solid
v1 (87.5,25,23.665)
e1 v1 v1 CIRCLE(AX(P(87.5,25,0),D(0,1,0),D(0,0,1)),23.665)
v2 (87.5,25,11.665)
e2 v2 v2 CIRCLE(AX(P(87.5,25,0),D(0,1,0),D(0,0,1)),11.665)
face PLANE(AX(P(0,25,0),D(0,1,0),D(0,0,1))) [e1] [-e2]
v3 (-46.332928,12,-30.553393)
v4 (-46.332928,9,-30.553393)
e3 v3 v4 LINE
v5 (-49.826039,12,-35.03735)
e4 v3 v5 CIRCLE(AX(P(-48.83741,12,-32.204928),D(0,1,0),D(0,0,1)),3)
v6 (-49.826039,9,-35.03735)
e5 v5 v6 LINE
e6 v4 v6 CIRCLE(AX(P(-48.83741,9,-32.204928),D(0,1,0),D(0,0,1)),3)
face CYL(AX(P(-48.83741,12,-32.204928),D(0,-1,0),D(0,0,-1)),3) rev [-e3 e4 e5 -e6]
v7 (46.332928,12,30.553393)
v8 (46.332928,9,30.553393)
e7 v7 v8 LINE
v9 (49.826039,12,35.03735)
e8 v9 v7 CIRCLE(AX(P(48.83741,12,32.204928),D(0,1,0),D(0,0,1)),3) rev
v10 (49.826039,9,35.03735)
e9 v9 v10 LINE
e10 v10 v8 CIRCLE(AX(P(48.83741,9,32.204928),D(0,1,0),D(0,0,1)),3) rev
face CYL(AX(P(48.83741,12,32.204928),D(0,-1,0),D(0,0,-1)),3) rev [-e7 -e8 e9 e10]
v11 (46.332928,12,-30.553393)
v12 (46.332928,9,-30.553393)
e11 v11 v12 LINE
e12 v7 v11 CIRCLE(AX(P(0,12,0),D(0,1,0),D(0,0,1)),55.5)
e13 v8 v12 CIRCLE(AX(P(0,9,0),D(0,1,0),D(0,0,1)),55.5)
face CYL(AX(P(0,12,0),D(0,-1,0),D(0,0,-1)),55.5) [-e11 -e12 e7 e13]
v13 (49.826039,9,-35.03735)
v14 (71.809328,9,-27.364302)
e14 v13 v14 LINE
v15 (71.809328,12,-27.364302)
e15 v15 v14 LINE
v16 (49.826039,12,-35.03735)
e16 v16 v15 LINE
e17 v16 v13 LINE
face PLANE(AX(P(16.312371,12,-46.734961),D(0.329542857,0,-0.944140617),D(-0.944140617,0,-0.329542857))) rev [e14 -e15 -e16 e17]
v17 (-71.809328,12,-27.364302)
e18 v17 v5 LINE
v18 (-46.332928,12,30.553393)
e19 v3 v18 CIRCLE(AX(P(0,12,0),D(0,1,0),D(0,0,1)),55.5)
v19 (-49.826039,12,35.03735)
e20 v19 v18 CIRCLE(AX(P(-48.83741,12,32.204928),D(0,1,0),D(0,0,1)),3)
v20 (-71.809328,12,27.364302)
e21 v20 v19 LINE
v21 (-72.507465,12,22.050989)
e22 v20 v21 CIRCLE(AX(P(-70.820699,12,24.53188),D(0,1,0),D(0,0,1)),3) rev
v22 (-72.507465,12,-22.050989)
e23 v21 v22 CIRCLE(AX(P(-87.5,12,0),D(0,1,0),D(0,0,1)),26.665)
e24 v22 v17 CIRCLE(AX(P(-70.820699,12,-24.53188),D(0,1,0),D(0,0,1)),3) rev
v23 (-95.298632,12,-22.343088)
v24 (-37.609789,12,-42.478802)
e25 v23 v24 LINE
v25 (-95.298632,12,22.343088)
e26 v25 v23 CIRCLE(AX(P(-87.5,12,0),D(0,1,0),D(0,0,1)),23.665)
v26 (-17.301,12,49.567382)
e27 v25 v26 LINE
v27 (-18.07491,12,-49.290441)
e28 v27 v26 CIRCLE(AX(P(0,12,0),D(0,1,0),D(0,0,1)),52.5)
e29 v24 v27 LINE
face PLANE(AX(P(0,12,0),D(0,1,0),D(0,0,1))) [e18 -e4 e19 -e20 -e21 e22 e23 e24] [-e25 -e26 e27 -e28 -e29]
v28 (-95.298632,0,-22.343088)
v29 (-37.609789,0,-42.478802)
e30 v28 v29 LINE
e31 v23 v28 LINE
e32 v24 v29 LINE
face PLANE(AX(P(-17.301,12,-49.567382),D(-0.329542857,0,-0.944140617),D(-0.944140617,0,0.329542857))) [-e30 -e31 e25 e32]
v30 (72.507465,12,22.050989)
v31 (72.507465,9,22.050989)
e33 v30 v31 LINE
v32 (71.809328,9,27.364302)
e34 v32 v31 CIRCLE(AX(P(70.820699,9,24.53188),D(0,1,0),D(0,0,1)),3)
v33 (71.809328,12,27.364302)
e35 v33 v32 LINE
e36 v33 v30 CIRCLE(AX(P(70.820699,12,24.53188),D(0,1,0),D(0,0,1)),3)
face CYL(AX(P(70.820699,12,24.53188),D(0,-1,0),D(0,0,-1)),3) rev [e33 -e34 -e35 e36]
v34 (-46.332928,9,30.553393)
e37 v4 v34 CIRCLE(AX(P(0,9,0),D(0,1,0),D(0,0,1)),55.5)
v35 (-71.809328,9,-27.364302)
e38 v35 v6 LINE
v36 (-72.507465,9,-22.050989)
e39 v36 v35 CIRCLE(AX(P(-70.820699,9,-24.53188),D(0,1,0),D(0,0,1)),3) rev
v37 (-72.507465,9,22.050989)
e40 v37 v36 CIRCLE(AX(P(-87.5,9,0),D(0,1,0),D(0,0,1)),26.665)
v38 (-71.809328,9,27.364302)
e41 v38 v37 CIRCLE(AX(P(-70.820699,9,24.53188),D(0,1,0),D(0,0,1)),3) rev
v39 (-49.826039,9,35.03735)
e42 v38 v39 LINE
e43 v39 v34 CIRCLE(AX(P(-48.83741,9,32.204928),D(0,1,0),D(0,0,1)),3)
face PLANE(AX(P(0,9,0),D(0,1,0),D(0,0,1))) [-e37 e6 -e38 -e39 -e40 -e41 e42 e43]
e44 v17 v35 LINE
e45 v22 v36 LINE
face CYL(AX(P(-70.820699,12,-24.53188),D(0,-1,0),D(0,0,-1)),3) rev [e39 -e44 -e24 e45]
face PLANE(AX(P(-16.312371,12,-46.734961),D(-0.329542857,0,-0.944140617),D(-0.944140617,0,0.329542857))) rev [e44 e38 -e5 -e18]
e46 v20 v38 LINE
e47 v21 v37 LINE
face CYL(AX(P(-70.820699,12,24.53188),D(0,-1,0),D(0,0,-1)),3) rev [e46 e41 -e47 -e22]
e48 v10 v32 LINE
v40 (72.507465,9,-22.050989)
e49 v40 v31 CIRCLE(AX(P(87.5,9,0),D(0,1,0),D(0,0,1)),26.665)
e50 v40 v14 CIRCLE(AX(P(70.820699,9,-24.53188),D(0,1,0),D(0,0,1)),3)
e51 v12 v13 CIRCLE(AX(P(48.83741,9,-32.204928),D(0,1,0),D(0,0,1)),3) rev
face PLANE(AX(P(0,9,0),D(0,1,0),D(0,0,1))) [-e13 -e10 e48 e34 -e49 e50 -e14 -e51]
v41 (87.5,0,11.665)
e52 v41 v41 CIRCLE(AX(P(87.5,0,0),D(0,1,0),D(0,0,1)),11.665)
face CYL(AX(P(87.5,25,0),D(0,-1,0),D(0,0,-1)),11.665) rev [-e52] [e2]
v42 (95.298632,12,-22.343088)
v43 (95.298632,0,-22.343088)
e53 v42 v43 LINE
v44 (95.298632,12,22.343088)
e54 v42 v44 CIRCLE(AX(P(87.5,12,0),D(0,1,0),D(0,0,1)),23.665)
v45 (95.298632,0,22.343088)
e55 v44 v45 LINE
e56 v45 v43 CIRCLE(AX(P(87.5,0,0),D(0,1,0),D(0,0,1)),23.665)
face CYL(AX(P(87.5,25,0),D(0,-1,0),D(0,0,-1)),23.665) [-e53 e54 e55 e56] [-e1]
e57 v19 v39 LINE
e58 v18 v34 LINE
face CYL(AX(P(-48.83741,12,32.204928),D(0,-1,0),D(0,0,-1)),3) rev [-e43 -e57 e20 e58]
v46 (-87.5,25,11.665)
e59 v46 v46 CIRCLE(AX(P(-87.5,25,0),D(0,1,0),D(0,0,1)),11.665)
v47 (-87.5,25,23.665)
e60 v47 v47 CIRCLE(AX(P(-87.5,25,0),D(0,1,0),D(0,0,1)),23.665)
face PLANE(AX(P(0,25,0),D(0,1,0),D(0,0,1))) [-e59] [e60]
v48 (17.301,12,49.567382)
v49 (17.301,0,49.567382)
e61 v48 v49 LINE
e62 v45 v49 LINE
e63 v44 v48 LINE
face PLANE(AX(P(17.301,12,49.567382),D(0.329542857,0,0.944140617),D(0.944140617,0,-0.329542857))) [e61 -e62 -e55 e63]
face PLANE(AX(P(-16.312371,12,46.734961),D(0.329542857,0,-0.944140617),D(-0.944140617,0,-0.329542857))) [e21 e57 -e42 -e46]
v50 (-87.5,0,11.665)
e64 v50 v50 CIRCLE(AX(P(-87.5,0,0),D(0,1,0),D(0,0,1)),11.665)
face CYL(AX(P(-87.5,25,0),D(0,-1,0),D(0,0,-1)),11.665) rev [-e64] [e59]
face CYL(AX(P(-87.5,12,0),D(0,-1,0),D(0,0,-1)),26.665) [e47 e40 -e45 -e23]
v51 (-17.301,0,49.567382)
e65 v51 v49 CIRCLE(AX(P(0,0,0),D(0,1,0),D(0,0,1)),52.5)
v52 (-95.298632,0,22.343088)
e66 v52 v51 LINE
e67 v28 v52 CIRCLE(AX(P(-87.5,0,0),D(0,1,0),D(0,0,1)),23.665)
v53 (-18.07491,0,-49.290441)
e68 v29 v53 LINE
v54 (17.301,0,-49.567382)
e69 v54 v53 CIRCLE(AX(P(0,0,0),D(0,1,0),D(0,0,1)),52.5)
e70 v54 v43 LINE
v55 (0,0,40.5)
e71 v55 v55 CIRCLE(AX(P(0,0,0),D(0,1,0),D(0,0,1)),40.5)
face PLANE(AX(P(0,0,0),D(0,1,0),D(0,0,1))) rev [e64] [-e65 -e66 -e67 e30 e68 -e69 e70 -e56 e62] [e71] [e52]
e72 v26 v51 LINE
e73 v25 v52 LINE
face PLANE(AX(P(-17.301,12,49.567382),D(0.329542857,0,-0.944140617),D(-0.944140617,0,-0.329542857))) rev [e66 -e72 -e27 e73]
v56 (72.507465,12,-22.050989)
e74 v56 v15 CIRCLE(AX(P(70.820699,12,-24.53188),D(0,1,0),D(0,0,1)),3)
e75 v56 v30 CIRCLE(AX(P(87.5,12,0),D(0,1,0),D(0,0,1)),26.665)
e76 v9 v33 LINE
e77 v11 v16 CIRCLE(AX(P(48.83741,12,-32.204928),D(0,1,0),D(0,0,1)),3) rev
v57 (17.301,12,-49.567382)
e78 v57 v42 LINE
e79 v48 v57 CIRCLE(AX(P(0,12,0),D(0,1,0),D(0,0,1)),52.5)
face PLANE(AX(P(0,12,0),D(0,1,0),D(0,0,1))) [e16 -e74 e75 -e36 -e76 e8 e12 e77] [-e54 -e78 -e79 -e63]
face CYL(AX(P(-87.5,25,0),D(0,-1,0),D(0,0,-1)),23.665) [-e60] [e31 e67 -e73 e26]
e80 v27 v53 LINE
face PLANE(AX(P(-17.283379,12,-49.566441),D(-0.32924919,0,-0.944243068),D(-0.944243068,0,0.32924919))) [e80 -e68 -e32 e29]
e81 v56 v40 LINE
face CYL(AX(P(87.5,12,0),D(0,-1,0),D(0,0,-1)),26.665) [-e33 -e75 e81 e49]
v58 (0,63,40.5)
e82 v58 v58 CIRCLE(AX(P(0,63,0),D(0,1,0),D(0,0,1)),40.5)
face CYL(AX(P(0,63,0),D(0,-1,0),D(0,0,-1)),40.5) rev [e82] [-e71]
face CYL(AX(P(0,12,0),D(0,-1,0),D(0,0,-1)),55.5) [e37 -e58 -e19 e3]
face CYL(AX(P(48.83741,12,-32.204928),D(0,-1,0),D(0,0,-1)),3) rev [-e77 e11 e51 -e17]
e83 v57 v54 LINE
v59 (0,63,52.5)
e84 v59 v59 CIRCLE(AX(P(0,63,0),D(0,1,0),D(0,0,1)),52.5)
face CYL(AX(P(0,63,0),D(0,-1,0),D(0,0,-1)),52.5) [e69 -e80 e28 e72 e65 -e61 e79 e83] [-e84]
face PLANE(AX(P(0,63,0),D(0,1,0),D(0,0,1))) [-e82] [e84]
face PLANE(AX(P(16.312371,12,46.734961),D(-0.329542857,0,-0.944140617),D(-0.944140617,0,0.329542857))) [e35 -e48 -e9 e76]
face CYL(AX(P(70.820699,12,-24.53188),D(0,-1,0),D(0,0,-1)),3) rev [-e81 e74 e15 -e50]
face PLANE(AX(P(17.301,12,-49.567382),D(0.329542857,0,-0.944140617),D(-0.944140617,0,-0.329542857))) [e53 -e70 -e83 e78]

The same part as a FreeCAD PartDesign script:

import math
import FreeCAD as App
import Part
import Sketcher
from FreeCAD import Vector
Q = App.Units.Quantity

doc = App.newDocument("Part")
body = doc.addObject("PartDesign::Body", "Body")
body.AllowCompound = True

# Sketch on XZ plane
sketch1 = body.newObject("Sketcher::SketchObject", "Sketch")
sketch1.AttachmentSupport = (doc.getObject("XZ_Plane"), [""])
sketch1.MapMode = "FlatFace"
sketch1.addGeometry(Part.LineSegment(Vector(95.3, -22.3, 0), Vector(17.3, -49.6, 0)), False)
sketch1.addGeometry(Part.ArcOfCircle(Part.Circle(Vector(0, 0, 0), Vector(0, 0, 1), 52.5), math.radians(-71), math.radians(0)), False)
sketch1.addGeometry(Part.ArcOfCircle(Part.Circle(Vector(0, 0, 0), Vector(0, 0, 1), 52.5), math.radians(0), math.radians(71)), False)
sketch1.addGeometry(Part.LineSegment(Vector(17.3, 49.6, 0), Vector(95.3, 22.3, 0)), False)
sketch1.addGeometry(Part.ArcOfCircle(Part.Circle(Vector(87.5, 0, 0), Vector(0, 0, 1), 23.7), math.radians(71), math.radians(289)), False)
sketch1.addGeometry(Part.ArcOfCircle(Part.Circle(Vector(70.8, 24.5, 0), Vector(0, 0, 1), 3), math.radians(-56), math.radians(71)), False)
sketch1.addGeometry(Part.LineSegment(Vector(71.8, 27.4, 0), Vector(49.8, 35, 0)), False)
sketch1.addGeometry(Part.ArcOfCircle(Part.Circle(Vector(48.8, 32.2, 0), Vector(0, 0, 1), 3), math.radians(71), math.radians(213)), False)
sketch1.addGeometry(Part.ArcOfCircle(Part.Circle(Vector(0, 0, 0), Vector(0, 0, 1), 55.5), math.radians(-33), math.radians(33)), False)
sketch1.addGeometry(Part.ArcOfCircle(Part.Circle(Vector(48.8, -32.2, 0), Vector(0, 0, 1), 3), math.radians(147), math.radians(289)), False)
sketch1.addGeometry(Part.LineSegment(Vector(49.8, -35, 0), Vector(71.8, -27.4, 0)), False)
sketch1.addGeometry(Part.ArcOfCircle(Part.Circle(Vector(70.8, -24.5, 0), Vector(0, 0, 1), 3), math.radians(-71), math.radians(56)), False)
sketch1.addGeometry(Part.ArcOfCircle(Part.Circle(Vector(87.5, 0, 0), Vector(0, 0, 1), 26.7), math.radians(124), math.radians(236)), False)
sketch1.addConstraint(Sketcher.Constraint("Tangent", 0, 2, 1, 1))
sketch1.addConstraint(Sketcher.Constraint("Tangent", 1, 2, 2, 1))
sketch1.addConstraint(Sketcher.Constraint("Tangent", 2, 2, 3, 1))
sketch1.addConstraint(Sketcher.Constraint("Tangent", 3, 2, 4, 1))
sketch1.addConstraint(Sketcher.Constraint("Tangent", 4, 2, 0, 1))
sketch1.addConstraint(Sketcher.Constraint("Tangent", 5, 2, 6, 1))
sketch1.addConstraint(Sketcher.Constraint("Tangent", 6, 2, 7, 1))
sketch1.addConstraint(Sketcher.Constraint("Tangent", 7, 2, 8, 2))
sketch1.addConstraint(Sketcher.Constraint("Tangent", 8, 1, 9, 1))
sketch1.addConstraint(Sketcher.Constraint("Tangent", 9, 2, 10, 1))
sketch1.addConstraint(Sketcher.Constraint("Tangent", 10, 2, 11, 1))
sketch1.addConstraint(Sketcher.Constraint("Tangent", 11, 2, 12, 2))
sketch1.addConstraint(Sketcher.Constraint("Tangent", 12, 1, 5, 1))
sketch1.addConstraint(Sketcher.Constraint("Coincident", 1, 3, -1, 1))
sketch1.addConstraint(Sketcher.Constraint("Coincident", 8, 3, -1, 1))
sketch1.addConstraint(Sketcher.Constraint("Coincident", 12, 3, 4, 3))
sketch1.addConstraint(Sketcher.Constraint("Equal", 1, 2))
sketch1.addConstraint(Sketcher.Constraint("Equal", 5, 7))
sketch1.addConstraint(Sketcher.Constraint("Equal", 7, 9))
sketch1.addConstraint(Sketcher.Constraint("Equal", 9, 11))
sketch1.addConstraint(Sketcher.Constraint("Symmetric", 5, 3, 11, 3, -1))
sketch1.addConstraint(Sketcher.Constraint("PointOnObject", 1, 2, -1))
sketch1.addConstraint(Sketcher.Constraint("Parallel", 3, 6))
sketch1.addConstraint(Sketcher.Constraint("Parallel", 0, 10))
sketch1.addConstraint(Sketcher.Constraint("Radius", 5, Q("3 mm")))
sketch1.addConstraint(Sketcher.Constraint("Radius", 1, Q("52.5 mm")))
sketch1.addConstraint(Sketcher.Constraint("Radius", 8, Q("55.5 mm")))
sketch1.addConstraint(Sketcher.Constraint("Radius", 4, Q("23.665 mm")))
sketch1.addConstraint(Sketcher.Constraint("Radius", 12, Q("26.665 mm")))
sketch1.addConstraint(Sketcher.Constraint("DistanceX", 1, 2, 4, 3, Q("35 mm")))
sketch1.addConstraint(Sketcher.Constraint("DistanceX", -1, 1, 5, 3, Q("70.820699 mm")))
pad1 = body.newObject("PartDesign::Pad", "Pad")
pad1.Profile = sketch1
pad1.Length = 12
pad1.Reversed = True

# Sketch on XZ plane
sketch2 = body.newObject("Sketcher::SketchObject", "Sketch001")
sketch2.AttachmentSupport = (doc.getObject("XZ_Plane"), [""])
sketch2.MapMode = "FlatFace"
sketch2.addGeometry(Part.ArcOfCircle(Part.Circle(Vector(48.8, 32.2, 0), Vector(0, 0, 1), 3), math.radians(71), math.radians(213)), False)
sketch2.addGeometry(Part.LineSegment(Vector(49.8, 35, 0), Vector(71.8, 27.4, 0)), False)
sketch2.addGeometry(Part.ArcOfCircle(Part.Circle(Vector(70.8, 24.5, 0), Vector(0, 0, 1), 3), math.radians(-56), math.radians(71)), False)
sketch2.addGeometry(Part.ArcOfCircle(Part.Circle(Vector(87.5, 0, 0), Vector(0, 0, 1), 26.7), math.radians(124), math.radians(236)), False)
sketch2.addGeometry(Part.ArcOfCircle(Part.Circle(Vector(70.8, -24.5, 0), Vector(0, 0, 1), 3), math.radians(-71), math.radians(56)), False)
sketch2.addGeometry(Part.LineSegment(Vector(71.8, -27.4, 0), Vector(49.8, -35, 0)), False)
sketch2.addGeometry(Part.ArcOfCircle(Part.Circle(Vector(48.8, -32.2, 0), Vector(0, 0, 1), 3), math.radians(147), math.radians(289)), False)
sketch2.addGeometry(Part.ArcOfCircle(Part.Circle(Vector(0, 0, 0), Vector(0, 0, 1), 55.5), math.radians(-33), math.radians(33)), False)
sketch2.addGeometry(Part.ArcOfCircle(Part.Circle(Vector(0, 0, 0), Vector(0, 0, 1), 55.5), math.radians(147), math.radians(213)), False)
sketch2.addGeometry(Part.ArcOfCircle(Part.Circle(Vector(-48.8, -32.2, 0), Vector(0, 0, 1), 3), math.radians(-109), math.radians(33)), False)
sketch2.addGeometry(Part.LineSegment(Vector(-49.8, -35, 0), Vector(-71.8, -27.4, 0)), False)
sketch2.addGeometry(Part.ArcOfCircle(Part.Circle(Vector(-70.8, -24.5, 0), Vector(0, 0, 1), 3), math.radians(124), math.radians(251)), False)
sketch2.addGeometry(Part.ArcOfCircle(Part.Circle(Vector(-87.5, 0, 0), Vector(0, 0, 1), 26.7), math.radians(-56), math.radians(56)), False)
sketch2.addGeometry(Part.ArcOfCircle(Part.Circle(Vector(-70.8, 24.5, 0), Vector(0, 0, 1), 3), math.radians(109), math.radians(236)), False)
sketch2.addGeometry(Part.LineSegment(Vector(-71.8, 27.4, 0), Vector(-49.8, 35, 0)), False)
sketch2.addGeometry(Part.ArcOfCircle(Part.Circle(Vector(-48.8, 32.2, 0), Vector(0, 0, 1), 3), math.radians(-33), math.radians(109)), False)
sketch2.addConstraint(Sketcher.Constraint("Tangent", 0, 1, 1, 1))
sketch2.addConstraint(Sketcher.Constraint("Tangent", 1, 2, 2, 2))
sketch2.addConstraint(Sketcher.Constraint("Tangent", 2, 1, 3, 1))
sketch2.addConstraint(Sketcher.Constraint("Tangent", 3, 2, 4, 2))
sketch2.addConstraint(Sketcher.Constraint("Tangent", 4, 1, 5, 1))
sketch2.addConstraint(Sketcher.Constraint("Tangent", 5, 2, 6, 2))
sketch2.addConstraint(Sketcher.Constraint("Tangent", 6, 1, 7, 1))
sketch2.addConstraint(Sketcher.Constraint("Tangent", 7, 2, 0, 2))
sketch2.addConstraint(Sketcher.Constraint("Tangent", 8, 2, 9, 2))
sketch2.addConstraint(Sketcher.Constraint("Tangent", 9, 1, 10, 1))
sketch2.addConstraint(Sketcher.Constraint("Tangent", 10, 2, 11, 2))
sketch2.addConstraint(Sketcher.Constraint("Tangent", 11, 1, 12, 1))
sketch2.addConstraint(Sketcher.Constraint("Tangent", 12, 2, 13, 2))
sketch2.addConstraint(Sketcher.Constraint("Tangent", 13, 1, 14, 1))
sketch2.addConstraint(Sketcher.Constraint("Tangent", 14, 2, 15, 2))
sketch2.addConstraint(Sketcher.Constraint("Tangent", 15, 1, 8, 1))
sketch2.addConstraint(Sketcher.Constraint("Coincident", 7, 3, -1, 1))
sketch2.addConstraint(Sketcher.Constraint("Coincident", 8, 3, -1, 1))
sketch2.addConstraint(Sketcher.Constraint("Equal", 0, 2))
sketch2.addConstraint(Sketcher.Constraint("Equal", 2, 4))
sketch2.addConstraint(Sketcher.Constraint("Equal", 4, 6))
sketch2.addConstraint(Sketcher.Constraint("Equal", 7, 8))
sketch2.addConstraint(Sketcher.Constraint("Equal", 6, 9))
sketch2.addConstraint(Sketcher.Constraint("Equal", 9, 11))
sketch2.addConstraint(Sketcher.Constraint("Equal", 3, 12))
sketch2.addConstraint(Sketcher.Constraint("Equal", 11, 13))
sketch2.addConstraint(Sketcher.Constraint("Equal", 13, 15))
sketch2.addConstraint(Sketcher.Constraint("Symmetric", 2, 3, 11, 3, -1, 1))
sketch2.addConstraint(Sketcher.Constraint("Symmetric", 4, 3, 13, 3, -1, 1))
sketch2.addConstraint(Sketcher.Constraint("Symmetric", 4, 3, 11, 3, -2))
sketch2.addConstraint(Sketcher.Constraint("Parallel", 1, 10))
sketch2.addConstraint(Sketcher.Constraint("Parallel", 5, 14))
sketch2.addConstraint(Sketcher.Constraint("Horizontal", 6, 3, 9, 3))
sketch2.addConstraint(Sketcher.Constraint("Radius", 0, Q("3 mm")))
sketch2.addConstraint(Sketcher.Constraint("Radius", 7, Q("55.5 mm")))
sketch2.addConstraint(Sketcher.Constraint("Radius", 3, Q("26.665 mm")))
sketch2.addConstraint(Sketcher.Constraint("DistanceX", -1, 1, 3, 3, Q("87.5 mm")))
sketch2.addConstraint(Sketcher.Constraint("DistanceX", -1, 1, 2, 3, Q("70.820699 mm")))
sketch2.addConstraint(Sketcher.Constraint("DistanceX", 6, 1, 4, 1, Q("25.4764 mm")))
pad2 = body.newObject("PartDesign::Pad", "Pad001")
pad2.Profile = sketch2
pad2.Length = 9
pad2.Reversed = True

# Sketch on XZ plane
sketch3 = body.newObject("Sketcher::SketchObject", "Sketch002")
sketch3.AttachmentSupport = (doc.getObject("XZ_Plane"), [""])
sketch3.MapMode = "FlatFace"
sketch3.addGeometry(Part.LineSegment(Vector(-37.6, -42.5, 0), Vector(-95.3, -22.3, 0)), False)
sketch3.addGeometry(Part.ArcOfCircle(Part.Circle(Vector(-87.5, 0, 0), Vector(0, 0, 1), 23.7), math.radians(-109), math.radians(0)), False)
sketch3.addGeometry(Part.ArcOfCircle(Part.Circle(Vector(-87.5, 0, 0), Vector(0, 0, 1), 23.7), math.radians(0), math.radians(109)), False)
sketch3.addGeometry(Part.LineSegment(Vector(-95.3, 22.3, 0), Vector(-17.3, 49.6, 0)), False)
sketch3.addGeometry(Part.ArcOfCircle(Part.Circle(Vector(0, 0, 0), Vector(0, 0, 1), 52.5), math.radians(109), math.radians(250)), False)
sketch3.addGeometry(Part.LineSegment(Vector(-18.1, -49.3, 0), Vector(-37.6, -42.5, 0)), False)
sketch3.addGeometry(Part.ArcOfCircle(Part.Circle(Vector(-87.5, 0, 0), Vector(0, 0, 1), 26.7), math.radians(-56), math.radians(56)), False)
sketch3.addGeometry(Part.ArcOfCircle(Part.Circle(Vector(-70.8, -24.5, 0), Vector(0, 0, 1), 3), math.radians(124), math.radians(251)), False)
sketch3.addGeometry(Part.LineSegment(Vector(-71.8, -27.4, 0), Vector(-49.8, -35, 0)), False)
sketch3.addGeometry(Part.ArcOfCircle(Part.Circle(Vector(-48.8, -32.2, 0), Vector(0, 0, 1), 3), math.radians(-109), math.radians(33)), False)
sketch3.addGeometry(Part.ArcOfCircle(Part.Circle(Vector(0, 0, 0), Vector(0, 0, 1), 55.5), math.radians(147), math.radians(213)), False)
sketch3.addGeometry(Part.ArcOfCircle(Part.Circle(Vector(-48.8, 32.2, 0), Vector(0, 0, 1), 3), math.radians(-33), math.radians(109)), False)
sketch3.addGeometry(Part.LineSegment(Vector(-49.8, 35, 0), Vector(-71.8, 27.4, 0)), False)
sketch3.addGeometry(Part.ArcOfCircle(Part.Circle(Vector(-70.8, 24.5, 0), Vector(0, 0, 1), 3), math.radians(109), math.radians(236)), False)
sketch3.addConstraint(Sketcher.Constraint("Tangent", 0, 2, 1, 1))
sketch3.addConstraint(Sketcher.Constraint("Tangent", 1, 2, 2, 1))
sketch3.addConstraint(Sketcher.Constraint("Tangent", 2, 2, 3, 1))
sketch3.addConstraint(Sketcher.Constraint("Tangent", 3, 2, 4, 1))
sketch3.addConstraint(Sketcher.Constraint("Coincident", 4, 2, 5, 1))
sketch3.addConstraint(Sketcher.Constraint("Coincident", 5, 2, 0, 1))
sketch3.addConstraint(Sketcher.Constraint("Tangent", 6, 1, 7, 1))
sketch3.addConstraint(Sketcher.Constraint("Tangent", 7, 2, 8, 1))
sketch3.addConstraint(Sketcher.Constraint("Tangent", 8, 2, 9, 1))
sketch3.addConstraint(Sketcher.Constraint("Tangent", 9, 2, 10, 2))
sketch3.addConstraint(Sketcher.Constraint("Tangent", 10, 1, 11, 1))
sketch3.addConstraint(Sketcher.Constraint("Tangent", 11, 2, 12, 1))
sketch3.addConstraint(Sketcher.Constraint("Tangent", 12, 2, 13, 1))
sketch3.addConstraint(Sketcher.Constraint("Tangent", 13, 2, 6, 2))
sketch3.addConstraint(Sketcher.Constraint("Coincident", 4, 3, -1, 1))
sketch3.addConstraint(Sketcher.Constraint("Coincident", 10, 3, -1, 1))
sketch3.addConstraint(Sketcher.Constraint("Coincident", 6, 3, 1, 3))
sketch3.addConstraint(Sketcher.Constraint("Equal", 1, 2))
sketch3.addConstraint(Sketcher.Constraint("Equal", 7, 9))
sketch3.addConstraint(Sketcher.Constraint("Equal", 9, 11))
sketch3.addConstraint(Sketcher.Constraint("Equal", 11, 13))
sketch3.addConstraint(Sketcher.Constraint("Symmetric", 7, 3, 13, 3, -1))
sketch3.addConstraint(Sketcher.Constraint("PointOnObject", 1, 2, -1))
sketch3.addConstraint(Sketcher.Constraint("Parallel", 0, 8))
sketch3.addConstraint(Sketcher.Constraint("Parallel", 3, 12))
sketch3.addConstraint(Sketcher.Constraint("Vertical", 9, 3, 11, 3))
sketch3.addConstraint(Sketcher.Constraint("Radius", 7, Q("3 mm")))
sketch3.addConstraint(Sketcher.Constraint("Radius", 4, Q("52.5 mm")))
sketch3.addConstraint(Sketcher.Constraint("Radius", 10, Q("55.5 mm")))
sketch3.addConstraint(Sketcher.Constraint("Radius", 1, Q("23.665 mm")))
sketch3.addConstraint(Sketcher.Constraint("Radius", 6, Q("26.665 mm")))
sketch3.addConstraint(Sketcher.Constraint("DistanceX", 1, 3, -1, 1, Q("87.5 mm")))
sketch3.addConstraint(Sketcher.Constraint("Distance", 5, Q("20.688401 mm")))
sketch3.addConstraint(Sketcher.Constraint("DistanceX", 7, 3, -1, 1, Q("70.820699 mm")))
sketch3.addConstraint(Sketcher.Constraint("DistanceX", 9, 3, 4, 2, Q("30.7625 mm")))
pad3 = body.newObject("PartDesign::Pad", "Pad002")
pad3.Profile = sketch3
pad3.Length = 12
pad3.Reversed = True

# Sketch on XZ plane
sketch4 = body.newObject("Sketcher::SketchObject", "Sketch003")
sketch4.AttachmentSupport = (doc.getObject("XZ_Plane"), [""])
sketch4.MapMode = "FlatFace"
sketch4.addGeometry(Part.Circle(Vector(0, 0, 0), Vector(0, 0, 1), 52), False)
sketch4.addGeometry(Part.Circle(Vector(0, 0, 0), Vector(0, 0, 1), 40), False)
sketch4.addConstraint(Sketcher.Constraint("Coincident", 0, 3, -1, 1))
sketch4.addConstraint(Sketcher.Constraint("Coincident", 1, 3, -1, 1))
sketch4.addConstraint(Sketcher.Constraint("Diameter", 0, Q("105 mm")))
sketch4.addConstraint(Sketcher.Constraint("Diameter", 1, Q("81 mm")))
pad4 = body.newObject("PartDesign::Pad", "Pad003")
pad4.Profile = sketch4
pad4.Length = 63
pad4.Reversed = True

# Sketch on XZ plane
sketch5 = body.newObject("Sketcher::SketchObject", "Sketch004")
sketch5.AttachmentSupport = (doc.getObject("XZ_Plane"), [""])
sketch5.MapMode = "FlatFace"
sketch5.addGeometry(Part.Circle(Vector(-88, 0, 0), Vector(0, 0, 1), 24), False)
sketch5.addGeometry(Part.Circle(Vector(-88, 0, 0), Vector(0, 0, 1), 12), False)
sketch5.addGeometry(Part.Circle(Vector(88, 0, 0), Vector(0, 0, 1), 24), False)
sketch5.addGeometry(Part.Circle(Vector(88, 0, 0), Vector(0, 0, 1), 12), False)
sketch5.addConstraint(Sketcher.Constraint("Coincident", 1, 3, 0, 3))
sketch5.addConstraint(Sketcher.Constraint("Coincident", 3, 3, 2, 3))
sketch5.addConstraint(Sketcher.Constraint("Equal", 0, 2))
sketch5.addConstraint(Sketcher.Constraint("Equal", 1, 3))
sketch5.addConstraint(Sketcher.Constraint("Symmetric", 0, 3, 2, 3, -1, 1))
sketch5.addConstraint(Sketcher.Constraint("PointOnObject", 0, 3, -1))
sketch5.addConstraint(Sketcher.Constraint("Diameter", 0, Q("47.33 mm")))
sketch5.addConstraint(Sketcher.Constraint("Diameter", 1, Q("23.33 mm")))
sketch5.addConstraint(Sketcher.Constraint("DistanceX", 0, 3, 2, 3, Q("175 mm")))
pad5 = body.newObject("PartDesign::Pad", "Pad004")
pad5.Profile = sketch5
pad5.Length = 25
pad5.Reversed = True

doc.recompute()
